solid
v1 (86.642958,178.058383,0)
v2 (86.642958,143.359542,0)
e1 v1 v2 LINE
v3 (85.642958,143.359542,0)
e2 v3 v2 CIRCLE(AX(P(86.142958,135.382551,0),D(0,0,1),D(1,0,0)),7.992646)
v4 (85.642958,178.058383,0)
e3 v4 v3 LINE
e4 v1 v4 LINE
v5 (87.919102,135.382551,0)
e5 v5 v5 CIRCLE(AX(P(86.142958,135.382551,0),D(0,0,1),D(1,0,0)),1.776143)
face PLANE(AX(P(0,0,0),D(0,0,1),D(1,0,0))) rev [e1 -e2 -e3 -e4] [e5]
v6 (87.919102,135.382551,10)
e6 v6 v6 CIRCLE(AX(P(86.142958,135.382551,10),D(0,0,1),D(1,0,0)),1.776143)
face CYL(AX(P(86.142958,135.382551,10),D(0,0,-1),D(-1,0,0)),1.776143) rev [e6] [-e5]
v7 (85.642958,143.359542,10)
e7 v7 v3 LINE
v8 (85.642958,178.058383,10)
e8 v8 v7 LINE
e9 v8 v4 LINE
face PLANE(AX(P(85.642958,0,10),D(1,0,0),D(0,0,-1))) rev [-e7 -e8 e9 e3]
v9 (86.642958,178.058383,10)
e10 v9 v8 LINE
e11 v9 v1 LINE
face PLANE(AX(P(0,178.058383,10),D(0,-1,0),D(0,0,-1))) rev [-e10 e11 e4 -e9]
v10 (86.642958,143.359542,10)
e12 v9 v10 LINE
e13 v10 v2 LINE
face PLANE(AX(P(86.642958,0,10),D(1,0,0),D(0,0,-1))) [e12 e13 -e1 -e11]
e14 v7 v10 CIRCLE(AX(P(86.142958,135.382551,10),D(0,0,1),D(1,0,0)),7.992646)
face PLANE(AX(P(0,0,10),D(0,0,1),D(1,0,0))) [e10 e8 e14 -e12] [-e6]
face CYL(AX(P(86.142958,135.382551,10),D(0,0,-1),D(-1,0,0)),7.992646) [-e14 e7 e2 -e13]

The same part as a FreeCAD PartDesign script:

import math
import FreeCAD as App
import Part
import Sketcher

doc = App.newDocument("Part")
body = doc.addObject("PartDesign::Body", "Body")

# Sketch on XY plane
sketch1 = body.newObject("Sketcher::SketchObject", "Sketch")
sketch1.AttachmentSupport = (doc.getObject("XY_Plane"), [""])
sketch1.MapMode = "FlatFace"
sketch1.addGeometry(Part.ArcOfCircle(Part.Circle(App.Vector(86.142958, 135.382551, 0), App.Vector(0, 0, 1), 7.992646), math.radians(93.586623), math.radians(203.185046)), False)
sketch1.addGeometry(Part.ArcOfCircle(Part.Circle(App.Vector(86.142958, 135.382551, 0), App.Vector(0, 0, 1), 7.992646), math.radians(-156.814954), math.radians(0)), False)
sketch1.addGeometry(Part.ArcOfCircle(Part.Circle(App.Vector(86.142958, 135.382551, 0), App.Vector(0, 0, 1), 7.992646), math.radians(0), math.radians(22.924951)), False)
sketch1.addGeometry(Part.ArcOfCircle(Part.Circle(App.Vector(86.142958, 135.382551, 0), App.Vector(0, 0, 1), 7.992646), math.radians(22.924951), math.radians(86.413377)), False)
sketch1.addGeometry(Part.LineSegment(App.Vector(86.642958, 143.359542, 0), App.Vector(86.642958, 178.058383, 0)), False)
sketch1.addGeometry(Part.LineSegment(App.Vector(86.642958, 178.058383, 0), App.Vector(85.642958, 178.058383, 0)), False)
sketch1.addGeometry(Part.LineSegment(App.Vector(85.642958, 178.058383, 0), App.Vector(85.642958, 143.359542, 0)), False)
sketch1.addGeometry(Part.ArcOfCircle(Part.Circle(App.Vector(86.142958, 135.382551, 0), App.Vector(0, 0, 1), 1.776143), math.radians(90), math.radians(203.630677)), False)
sketch1.addGeometry(Part.ArcOfCircle(Part.Circle(App.Vector(86.142958, 135.382551, 0), App.Vector(0, 0, 1), 1.776143), math.radians(24.108444), math.radians(90)), False)
sketch1.addGeometry(Part.ArcOfCircle(Part.Circle(App.Vector(86.142958, 135.382551, 0), App.Vector(0, 0, 1), 1.776143), math.radians(0), math.radians(24.108444)), False)
sketch1.addGeometry(Part.ArcOfCircle(Part.Circle(App.Vector(86.142958, 135.382551, 0), App.Vector(0, 0, 1), 1.776143), math.radians(-156.369323), math.radians(0)), False)
sketch1.addConstraint(Sketcher.Constraint("Tangent", 0, 2, 1, 1))
sketch1.addConstraint(Sketcher.Constraint("Tangent", 1, 2, 2, 1))
sketch1.addConstraint(Sketcher.Constraint("Tangent", 2, 2, 3, 1))
sketch1.addConstraint(Sketcher.Constraint("Coincident", 3, 2, 4, 1))
sketch1.addConstraint(Sketcher.Constraint("Coincident", 4, 2, 5, 1))
sketch1.addConstraint(Sketcher.Constraint("Coincident", 5, 2, 6, 1))
sketch1.addConstraint(Sketcher.Constraint("Coincident", 6, 2, 0, 1))
sketch1.addConstraint(Sketcher.Constraint("Tangent", 7, 1, 8, 2))
sketch1.addConstraint(Sketcher.Constraint("Tangent", 8, 1, 9, 2))
sketch1.addConstraint(Sketcher.Constraint("Tangent", 9, 1, 10, 2))
sketch1.addConstraint(Sketcher.Constraint("Tangent", 10, 1, 7, 2))
sketch1.addConstraint(Sketcher.Constraint("Vertical", 4))
sketch1.addConstraint(Sketcher.Constraint("Horizontal", 5))
sketch1.addConstraint(Sketcher.Constraint("Vertical", 6))
sketch1.addConstraint(Sketcher.Constraint("Coincident", 2, 3, 0, 3))
sketch1.addConstraint(Sketcher.Constraint("Coincident", 7, 3, 0, 3))
sketch1.addConstraint(Sketcher.Constraint("Equal", 2, 3))
sketch1.addConstraint(Sketcher.Constraint("Equal", 7, 8))
sketch1.addConstraint(Sketcher.Constraint("Horizontal", 10, 3, 1, 2))
sketch1.addConstraint(Sketcher.Constraint("Horizontal", 3, 2, 6, 2))
sketch1.addConstraint(Sketcher.Constraint("Horizontal", 1, 2, 9, 1))
sketch1.addConstraint(Sketcher.Constraint("Vertical", 10, 3, 7, 1))
sketch1.addConstraint(Sketcher.Constraint("DistanceX", 5, 2, 5, 1, 1.0))
sketch1.addConstraint(Sketcher.Constraint("Radius", 0, 7.992646))
sketch1.addConstraint(Sketcher.Constraint("Radius", 7, 1.776143))
sketch1.addConstraint(Sketcher.Constraint("DistanceY", 4, 1, 4, 2, 34.698841))
sketch1.addConstraint(Sketcher.Constraint("DistanceX", -1, 1, 9, 1, 87.919102))
sketch1.addConstraint(Sketcher.Constraint("DistanceY", -1, 1, 0, 3, 135.382551))
sketch1.addConstraint(Sketcher.Constraint("DistanceY", -1, 1, 0, 2, 132.235831))
sketch1.addConstraint(Sketcher.Constraint("DistanceX", -1, 1, 2, 2, 93.504312))
sketch1.addConstraint(Sketcher.Constraint("DistanceX", 10, 1, 8, 3, 1.627211))
sketch1.addConstraint(Sketcher.Constraint("DistanceX", -1, 1, 8, 1, 87.764176))
pad1 = body.newObject("PartDesign::Pad", "Pad")
pad1.Profile = sketch1
pad1.Length = 10

doc.recompute()
